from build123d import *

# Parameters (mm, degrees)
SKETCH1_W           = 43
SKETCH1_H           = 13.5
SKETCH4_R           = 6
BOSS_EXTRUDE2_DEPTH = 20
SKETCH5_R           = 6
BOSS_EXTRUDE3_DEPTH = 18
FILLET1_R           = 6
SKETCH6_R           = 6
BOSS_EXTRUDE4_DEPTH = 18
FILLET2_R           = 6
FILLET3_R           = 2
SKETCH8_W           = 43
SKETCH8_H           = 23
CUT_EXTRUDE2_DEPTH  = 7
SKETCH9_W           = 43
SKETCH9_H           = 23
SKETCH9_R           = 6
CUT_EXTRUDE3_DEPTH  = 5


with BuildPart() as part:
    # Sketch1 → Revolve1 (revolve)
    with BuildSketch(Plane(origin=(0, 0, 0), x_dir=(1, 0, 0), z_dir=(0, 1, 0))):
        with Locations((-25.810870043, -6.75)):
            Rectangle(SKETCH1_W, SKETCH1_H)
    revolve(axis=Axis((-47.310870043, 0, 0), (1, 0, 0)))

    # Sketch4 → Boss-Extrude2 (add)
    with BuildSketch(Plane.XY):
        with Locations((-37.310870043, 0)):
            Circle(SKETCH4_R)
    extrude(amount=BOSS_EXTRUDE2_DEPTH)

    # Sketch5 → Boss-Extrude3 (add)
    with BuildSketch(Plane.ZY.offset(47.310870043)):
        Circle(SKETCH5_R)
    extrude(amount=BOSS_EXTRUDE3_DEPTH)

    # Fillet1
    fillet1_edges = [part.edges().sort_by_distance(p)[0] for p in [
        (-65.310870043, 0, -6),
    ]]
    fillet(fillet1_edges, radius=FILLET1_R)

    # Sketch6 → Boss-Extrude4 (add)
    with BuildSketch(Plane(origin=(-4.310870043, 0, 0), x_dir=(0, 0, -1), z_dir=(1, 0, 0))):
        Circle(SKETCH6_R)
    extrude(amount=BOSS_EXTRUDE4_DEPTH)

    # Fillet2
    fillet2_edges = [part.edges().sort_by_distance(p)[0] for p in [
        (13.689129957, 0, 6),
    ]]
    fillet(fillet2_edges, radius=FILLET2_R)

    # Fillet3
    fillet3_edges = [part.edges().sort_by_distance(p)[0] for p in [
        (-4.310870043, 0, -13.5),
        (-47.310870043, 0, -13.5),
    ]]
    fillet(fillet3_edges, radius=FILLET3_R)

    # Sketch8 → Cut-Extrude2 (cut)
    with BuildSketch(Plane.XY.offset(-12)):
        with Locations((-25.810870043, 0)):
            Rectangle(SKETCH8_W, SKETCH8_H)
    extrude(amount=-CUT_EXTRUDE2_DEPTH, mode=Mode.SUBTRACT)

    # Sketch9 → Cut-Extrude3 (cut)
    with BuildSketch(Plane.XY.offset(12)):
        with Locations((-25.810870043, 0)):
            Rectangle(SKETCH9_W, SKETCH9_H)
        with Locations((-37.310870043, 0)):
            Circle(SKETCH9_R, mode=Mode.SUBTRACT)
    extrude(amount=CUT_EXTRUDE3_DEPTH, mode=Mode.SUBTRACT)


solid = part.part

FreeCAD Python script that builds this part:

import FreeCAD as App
import Part
import Sketcher
from FreeCAD import Vector


def edges_at(feature, points):
    """Names of the edges that pass closest to the given points."""
    edges = feature.Shape.Edges
    near = lambda p: min(range(len(edges)), key=lambda i: edges[i].distToShape(Part.Vertex(*p))[0])
    return sorted({f"Edge{near(p) + 1}" for p in points})

doc = App.newDocument("Part")
body = doc.addObject("PartDesign::Body", "Body")

# Sketch on XZ plane
sketch1 = body.newObject("Sketcher::SketchObject", "Sketch")
sketch1.AttachmentSupport = (doc.getObject("XZ_Plane"), [""])
sketch1.MapMode = "FlatFace"
sketch1.addGeometry([
    Part.LineSegment(Vector(-47, 0, 0), Vector(-47, 14, 0)),
    Part.LineSegment(Vector(-47, 14, 0), Vector(-4, 14, 0)),
    Part.LineSegment(Vector(-4, 14, 0), Vector(-4, 0, 0)),
    Part.LineSegment(Vector(-4, 0, 0), Vector(-47, 0, 0)),
], False)
sketch1.addConstraint([
    Sketcher.Constraint("Coincident", 0, 2, 1, 1),
    Sketcher.Constraint("Coincident", 1, 2, 2, 1),
    Sketcher.Constraint("Coincident", 2, 2, 3, 1),
    Sketcher.Constraint("Coincident", 3, 2, 0, 1),
    Sketcher.Constraint("Vertical", 0),
    Sketcher.Constraint("Horizontal", 1),
    Sketcher.Constraint("Vertical", 2),
    Sketcher.Constraint("Horizontal", 3),
    Sketcher.Constraint("PointOnObject", 2, 2, -1),
    Sketcher.Constraint("DistanceX", 1, 1, 1, 2, 43.0),
    Sketcher.Constraint("DistanceY", 0, 1, 0, 2, 13.5),
    Sketcher.Constraint("DistanceX", 0, 2, -1, 1, 47.31087),
])
revolution = body.newObject("PartDesign::Revolution", "Revolution")
revolution.Profile = sketch1
revolution.ReferenceAxis = (sketch1, ["H_Axis"])
revolution.Angle = 360

# Sketch on XY plane
sketch2 = body.newObject("Sketcher::SketchObject", "Sketch001")
sketch2.AttachmentSupport = (doc.getObject("XY_Plane"), [""])
sketch2.MapMode = "FlatFace"
sketch2.addGeometry(Part.Circle(Vector(-37, 0, 0), Vector(0, 0, 1), 6), False)
sketch2.addConstraint([
    Sketcher.Constraint("PointOnObject", 0, 3, -1),
    Sketcher.Constraint("Diameter", 0, 12.0),
    Sketcher.Constraint("DistanceX", 0, 3, -1, 1, 37.31087),
])
pad1 = body.newObject("PartDesign::Pad", "Pad")
pad1.Profile = sketch2
pad1.Length = 20

# Sketch on YZ plane
sketch3 = body.newObject("Sketcher::SketchObject", "Sketch002")
sketch3.AttachmentSupport = (doc.getObject("YZ_Plane"), [""])
sketch3.MapMode = "FlatFace"
sketch3.AttachmentOffset = App.Placement(Vector(0, 0, -47.31087), App.Rotation())
sketch3.addGeometry(Part.Circle(Vector(0, 0, 0), Vector(0, 0, 1), 6), False)
sketch3.addConstraint([
    Sketcher.Constraint("Coincident", 0, 3, -1, 1),
    Sketcher.Constraint("Diameter", 0, 12.0),
])
pad2 = body.newObject("PartDesign::Pad", "Pad001")
pad2.Profile = sketch3
pad2.Length = 18
pad2.Reversed = True
doc.recompute()

fillet = body.newObject("PartDesign::Fillet", "Fillet")
fillet.Base = (pad2, edges_at(pad2, [(-65.311, 0, -6)]))
fillet.Radius = 6

# Sketch on YZ plane
sketch4 = body.newObject("Sketcher::SketchObject", "Sketch003")
sketch4.AttachmentSupport = (doc.getObject("YZ_Plane"), [""])
sketch4.MapMode = "FlatFace"
sketch4.AttachmentOffset = App.Placement(Vector(0, 0, -4.31087), App.Rotation())
sketch4.addGeometry(Part.Circle(Vector(0, 0, 0), Vector(0, 0, 1), 6), False)
sketch4.addConstraint([
    Sketcher.Constraint("Coincident", 0, 3, -1, 1),
    Sketcher.Constraint("Diameter", 0, 12.0),
])
pad3 = body.newObject("PartDesign::Pad", "Pad002")
pad3.Profile = sketch4
pad3.Length = 18
doc.recompute()

fillet2 = body.newObject("PartDesign::Fillet", "Fillet001")
fillet2.Base = (pad3, edges_at(pad3, [(13.689, 0, 6)]))
fillet2.Radius = 6
doc.recompute()

fillet3 = body.newObject("PartDesign::Fillet", "Fillet002")
fillet3.Base = (fillet2, edges_at(fillet2, [(-4.311, 0, -13.5), (-47.311, 0, -13.5)]))
fillet3.Radius = 2

# Sketch on XY plane
sketch5 = body.newObject("Sketcher::SketchObject", "Sketch004")
sketch5.AttachmentSupport = (doc.getObject("XY_Plane"), [""])
sketch5.MapMode = "FlatFace"
sketch5.AttachmentOffset = App.Placement(Vector(0, 0, -12), App.Rotation())
sketch5.addGeometry([
    Part.LineSegment(Vector(-47, 12, 0), Vector(-47, -12, 0)),
    Part.LineSegment(Vector(-47, -12, 0), Vector(-4, -12, 0)),
    Part.LineSegment(Vector(-4, -12, 0), Vector(-4, 12, 0)),
    Part.LineSegment(Vector(-4, 12, 0), Vector(-47, 12, 0)),
], False)
sketch5.addConstraint([
    Sketcher.Constraint("Coincident", 0, 2, 1, 1),
    Sketcher.Constraint("Coincident", 1, 2, 2, 1),
    Sketcher.Constraint("Coincident", 2, 2, 3, 1),
    Sketcher.Constraint("Coincident", 3, 2, 0, 1),
    Sketcher.Constraint("Vertical", 0),
    Sketcher.Constraint("Horizontal", 1),
    Sketcher.Constraint("Vertical", 2),
    Sketcher.Constraint("Horizontal", 3),
    Sketcher.Constraint("DistanceX", 1, 1, 1, 2, 43.0),
    Sketcher.Constraint("DistanceY", 0, 2, 0, 1, 23.0),
    Sketcher.Constraint("DistanceY", 0, 2, -1, 1, 11.5),
    Sketcher.Constraint("DistanceX", 0, 2, -1, 1, 47.31087),
])
pocket1 = body.newObject("PartDesign::Pocket", "Pocket")
pocket1.Profile = sketch5
pocket1.Length = 7

# Sketch on XY plane
sketch6 = body.newObject("Sketcher::SketchObject", "Sketch005")
sketch6.AttachmentSupport = (doc.getObject("XY_Plane"), [""])
sketch6.MapMode = "FlatFace"
sketch6.AttachmentOffset = App.Placement(Vector(0, 0, 12), App.Rotation())
sketch6.addGeometry([
    Part.LineSegment(Vector(-47, 12, 0), Vector(-47, -12, 0)),  # 0
    Part.LineSegment(Vector(-47, -12, 0), Vector(-4, -12, 0)),  # 1
    Part.LineSegment(Vector(-4, -12, 0), Vector(-4, 12, 0)),  # 2
    Part.LineSegment(Vector(-4, 12, 0), Vector(-47, 12, 0)),  # 3
    Part.Circle(Vector(-37, 0, 0), Vector(0, 0, 1), 6),  # 4
], False)
sketch6.addConstraint([
    Sketcher.Constraint("Coincident", 0, 2, 1, 1),
    Sketcher.Constraint("Coincident", 1, 2, 2, 1),
    Sketcher.Constraint("Coincident", 2, 2, 3, 1),
    Sketcher.Constraint("Coincident", 3, 2, 0, 1),
    Sketcher.Constraint("Vertical", 0),
    Sketcher.Constraint("Horizontal", 1),
    Sketcher.Constraint("Vertical", 2),
    Sketcher.Constraint("Horizontal", 3),
    Sketcher.Constraint("PointOnObject", 4, 3, -1),
    Sketcher.Constraint("Diameter", 4, 12.0),
    Sketcher.Constraint("DistanceX", 1, 1, 1, 2, 43.0),
    Sketcher.Constraint("DistanceY", 0, 2, 0, 1, 23.0),
    Sketcher.Constraint("DistanceX", 0, 2, 4, 3, 10.0),
    Sketcher.Constraint("DistanceY", 0, 2, -1, 1, 11.5),
    Sketcher.Constraint("DistanceX", 4, 3, -1, 1, 37.31087),
])
pocket2 = body.newObject("PartDesign::Pocket", "Pocket001")
pocket2.Profile = sketch6
pocket2.Length = 5
pocket2.Reversed = True

doc.recompute()
